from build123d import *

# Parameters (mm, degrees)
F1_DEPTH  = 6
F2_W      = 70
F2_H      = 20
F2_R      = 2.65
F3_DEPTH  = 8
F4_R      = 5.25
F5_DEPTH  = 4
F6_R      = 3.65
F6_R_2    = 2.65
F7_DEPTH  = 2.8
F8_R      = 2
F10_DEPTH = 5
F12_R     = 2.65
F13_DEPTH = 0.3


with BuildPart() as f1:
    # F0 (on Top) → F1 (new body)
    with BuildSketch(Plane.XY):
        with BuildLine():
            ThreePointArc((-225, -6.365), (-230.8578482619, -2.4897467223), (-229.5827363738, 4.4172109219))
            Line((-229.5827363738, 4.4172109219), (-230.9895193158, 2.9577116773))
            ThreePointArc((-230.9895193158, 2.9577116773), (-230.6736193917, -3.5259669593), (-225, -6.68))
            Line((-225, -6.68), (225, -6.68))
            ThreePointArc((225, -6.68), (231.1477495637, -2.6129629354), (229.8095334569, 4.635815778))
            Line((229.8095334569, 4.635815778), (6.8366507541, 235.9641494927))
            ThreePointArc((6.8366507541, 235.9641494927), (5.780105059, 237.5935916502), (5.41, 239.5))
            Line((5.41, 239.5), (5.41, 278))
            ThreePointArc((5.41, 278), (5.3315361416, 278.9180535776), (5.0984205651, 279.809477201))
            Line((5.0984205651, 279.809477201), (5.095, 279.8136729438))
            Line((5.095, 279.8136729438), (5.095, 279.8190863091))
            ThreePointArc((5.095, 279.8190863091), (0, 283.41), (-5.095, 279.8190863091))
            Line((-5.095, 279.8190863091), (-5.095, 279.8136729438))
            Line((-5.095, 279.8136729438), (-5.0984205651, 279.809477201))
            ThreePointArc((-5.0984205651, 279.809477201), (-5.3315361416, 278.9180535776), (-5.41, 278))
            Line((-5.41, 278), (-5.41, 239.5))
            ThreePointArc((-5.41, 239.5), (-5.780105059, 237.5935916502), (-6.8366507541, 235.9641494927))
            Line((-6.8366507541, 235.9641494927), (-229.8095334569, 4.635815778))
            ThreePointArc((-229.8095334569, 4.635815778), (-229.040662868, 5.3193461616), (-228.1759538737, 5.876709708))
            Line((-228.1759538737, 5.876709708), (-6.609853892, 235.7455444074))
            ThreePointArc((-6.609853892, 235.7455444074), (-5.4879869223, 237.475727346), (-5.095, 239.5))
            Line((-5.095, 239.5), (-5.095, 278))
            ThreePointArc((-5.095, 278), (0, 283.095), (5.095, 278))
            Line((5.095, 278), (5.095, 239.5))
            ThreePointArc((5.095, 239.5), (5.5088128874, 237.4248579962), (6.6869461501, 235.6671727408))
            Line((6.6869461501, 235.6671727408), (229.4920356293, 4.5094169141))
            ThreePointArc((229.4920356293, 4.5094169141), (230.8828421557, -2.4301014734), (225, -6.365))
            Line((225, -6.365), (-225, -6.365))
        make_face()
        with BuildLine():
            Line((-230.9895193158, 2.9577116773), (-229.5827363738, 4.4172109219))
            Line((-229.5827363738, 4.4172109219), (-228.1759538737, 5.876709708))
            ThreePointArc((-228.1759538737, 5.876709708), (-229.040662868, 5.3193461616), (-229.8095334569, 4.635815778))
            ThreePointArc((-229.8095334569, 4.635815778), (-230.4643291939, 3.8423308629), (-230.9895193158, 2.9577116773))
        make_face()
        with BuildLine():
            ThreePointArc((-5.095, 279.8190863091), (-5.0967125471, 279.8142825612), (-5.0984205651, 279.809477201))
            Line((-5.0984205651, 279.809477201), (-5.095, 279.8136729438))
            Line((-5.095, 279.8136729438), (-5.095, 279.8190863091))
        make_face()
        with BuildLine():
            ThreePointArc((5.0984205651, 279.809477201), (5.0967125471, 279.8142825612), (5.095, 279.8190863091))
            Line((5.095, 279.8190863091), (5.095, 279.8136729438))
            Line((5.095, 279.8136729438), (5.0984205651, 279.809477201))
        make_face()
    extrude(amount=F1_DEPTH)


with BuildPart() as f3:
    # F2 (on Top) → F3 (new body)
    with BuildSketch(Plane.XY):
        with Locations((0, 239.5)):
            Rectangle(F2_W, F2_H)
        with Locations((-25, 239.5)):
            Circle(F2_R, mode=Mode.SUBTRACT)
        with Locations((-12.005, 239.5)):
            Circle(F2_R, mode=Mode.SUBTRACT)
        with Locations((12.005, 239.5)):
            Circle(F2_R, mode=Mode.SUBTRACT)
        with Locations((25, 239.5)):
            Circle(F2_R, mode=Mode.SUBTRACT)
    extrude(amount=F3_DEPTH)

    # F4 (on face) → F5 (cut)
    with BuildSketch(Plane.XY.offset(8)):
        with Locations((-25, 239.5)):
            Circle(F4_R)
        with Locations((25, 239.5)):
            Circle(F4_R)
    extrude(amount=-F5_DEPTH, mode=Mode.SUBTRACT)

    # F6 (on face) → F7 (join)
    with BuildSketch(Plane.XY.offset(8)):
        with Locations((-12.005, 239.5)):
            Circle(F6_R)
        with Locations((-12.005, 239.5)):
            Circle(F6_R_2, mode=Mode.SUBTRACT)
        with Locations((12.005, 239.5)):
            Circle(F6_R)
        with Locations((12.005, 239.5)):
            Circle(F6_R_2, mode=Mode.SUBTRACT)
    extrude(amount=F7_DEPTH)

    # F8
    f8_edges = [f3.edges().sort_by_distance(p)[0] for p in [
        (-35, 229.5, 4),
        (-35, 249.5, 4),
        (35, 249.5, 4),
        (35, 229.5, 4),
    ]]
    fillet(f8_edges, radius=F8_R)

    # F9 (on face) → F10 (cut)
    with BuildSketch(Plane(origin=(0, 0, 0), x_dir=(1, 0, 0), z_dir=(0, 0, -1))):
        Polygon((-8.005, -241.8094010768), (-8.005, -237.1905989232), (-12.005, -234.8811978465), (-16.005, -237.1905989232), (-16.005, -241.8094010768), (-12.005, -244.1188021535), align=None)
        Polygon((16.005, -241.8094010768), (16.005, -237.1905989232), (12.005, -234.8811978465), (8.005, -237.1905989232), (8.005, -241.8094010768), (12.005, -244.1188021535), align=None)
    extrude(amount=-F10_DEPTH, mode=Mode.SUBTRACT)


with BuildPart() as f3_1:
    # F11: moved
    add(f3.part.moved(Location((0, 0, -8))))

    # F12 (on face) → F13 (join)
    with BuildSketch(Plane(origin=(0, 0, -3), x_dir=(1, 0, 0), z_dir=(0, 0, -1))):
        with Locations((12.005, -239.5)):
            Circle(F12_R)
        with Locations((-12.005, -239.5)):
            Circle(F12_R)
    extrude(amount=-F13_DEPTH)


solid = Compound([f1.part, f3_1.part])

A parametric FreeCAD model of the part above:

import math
import FreeCAD as App
import Part
import Sketcher
from FreeCAD import Vector
Q = App.Units.Quantity


def edges_at(feature, points):
    """Names of the edges that pass closest to the given points."""
    edges = feature.Shape.Edges
    near = lambda p: min(range(len(edges)), key=lambda i: edges[i].distToShape(Part.Vertex(*p))[0])
    return sorted({f"Edge{near(p) + 1}" for p in points})


def add_polygon(sketch, points):
    """Adds a closed chain of lines whose ends are joined by coincident constraints."""
    first, n = sketch.GeometryCount, len(points)
    for a, b in zip(points, points[1:] + points[:1]):
        sketch.addGeometry(Part.LineSegment(App.Vector(*a, 0), App.Vector(*b, 0)), False)
    for i in range(n):
        sketch.addConstraint(Sketcher.Constraint("Coincident", first + i, 2, first + (i + 1) % n, 1))

doc = App.newDocument("Part")
body = doc.addObject("PartDesign::Body", "Body")

# Sketch on XY plane
sketch1 = body.newObject("Sketcher::SketchObject", "Sketch")
sketch1.AttachmentSupport = (doc.getObject("XY_Plane"), [""])
sketch1.MapMode = "FlatFace"
sketch1.addGeometry([
    Part.ArcOfCircle(Part.Circle(Vector(-225, 0, 0), Vector(0, 0, 1), 6.68), math.radians(154), math.radians(270)),  # 0
    Part.LineSegment(Vector(-225, -6.68, 0), Vector(225, -6.68, 0)),  # 1
    Part.ArcOfCircle(Part.Circle(Vector(225, 0, 0), Vector(0, 0, 1), 6.68), math.radians(-90), math.radians(44)),  # 2
    Part.LineSegment(Vector(229.81, 4.636, 0), Vector(6.837, 235.964, 0)),  # 3
    Part.ArcOfCircle(Part.Circle(Vector(10.505, 239.5, 0), Vector(0, 0, 1), 5.095), math.radians(180), math.radians(224)),  # 4
    Part.LineSegment(Vector(5.41, 239.5, 0), Vector(5.41, 278, 0)),  # 5
    Part.ArcOfCircle(Part.Circle(Vector(0, 278, 0), Vector(0, 0, 1), 5.41), math.radians(0), math.radians(19.54)),  # 6
    Part.ArcOfCircle(Part.Circle(Vector(0, 278, 0), Vector(0, 0, 1), 5.41), math.radians(19.54), math.radians(19.65)),  # 7
    Part.ArcOfCircle(Part.Circle(Vector(0, 278, 0), Vector(0, 0, 1), 5.41), math.radians(20), math.radians(160)),  # 8
    Part.ArcOfCircle(Part.Circle(Vector(0, 278, 0), Vector(0, 0, 1), 5.41), math.radians(160.35), math.radians(160.46)),  # 9
    Part.ArcOfCircle(Part.Circle(Vector(0, 278, 0), Vector(0, 0, 1), 5.41), math.radians(160.46), math.radians(180)),  # 10
    Part.LineSegment(Vector(-5.41, 278, 0), Vector(-5.41, 239.5, 0)),  # 11
    Part.ArcOfCircle(Part.Circle(Vector(-10.505, 239.5, 0), Vector(0, 0, 1), 5.095), math.radians(-44), math.radians(0)),  # 12
    Part.LineSegment(Vector(-6.837, 235.964, 0), Vector(-229.81, 4.636, 0)),  # 13
    Part.ArcOfCircle(Part.Circle(Vector(-225, 0, 0), Vector(0, 0, 1), 6.68), math.radians(136.05), math.radians(153.72)),  # 14
    Part.ArcOfCircle(Part.Circle(Vector(-225, 0, 0), Vector(0, 0, 1), 6.365), math.radians(136), math.radians(270)),  # 15
    Part.LineSegment(Vector(-229.583, 4.417, 0), Vector(-228.176, 5.877, 0)),  # 16
    Part.LineSegment(Vector(-228.176, 5.877, 0), Vector(-6.61, 235.746, 0)),  # 17
    Part.ArcOfCircle(Part.Circle(Vector(-10.505, 239.5, 0), Vector(0, 0, 1), 5.41), math.radians(-44), math.radians(0)),  # 18
    Part.LineSegment(Vector(-5.095, 239.5, 0), Vector(-5.095, 278, 0)),  # 19
    Part.ArcOfCircle(Part.Circle(Vector(0, 278, 0), Vector(0, 0, 1), 5.095), math.radians(0), math.radians(180)),  # 20
    Part.LineSegment(Vector(5.095, 278, 0), Vector(5.095, 239.5, 0)),  # 21
    Part.ArcOfCircle(Part.Circle(Vector(10.505, 239.5, 0), Vector(0, 0, 1), 5.41), math.radians(180), math.radians(225)),  # 22
    Part.LineSegment(Vector(6.687, 235.667, 0), Vector(229.492, 4.509, 0)),  # 23
    Part.ArcOfCircle(Part.Circle(Vector(225, 0, 0), Vector(0, 0, 1), 6.365), math.radians(-90), math.radians(45)),  # 24
    Part.LineSegment(Vector(225, -6.365, 0), Vector(-225, -6.365, 0)),  # 25
], False)
sketch1.addConstraint([
    Sketcher.Constraint("Tangent", 0, 2, 1, 1),
    Sketcher.Constraint("Tangent", 1, 2, 2, 1),
    Sketcher.Constraint("Tangent", 2, 2, 3, 1),
    Sketcher.Constraint("Tangent", 3, 2, 4, 2),
    Sketcher.Constraint("Tangent", 4, 1, 5, 1),
    Sketcher.Constraint("Tangent", 5, 2, 6, 1),
    Sketcher.Constraint("Tangent", 6, 2, 7, 1),
    Sketcher.Constraint("Tangent", 7, 2, 8, 1),
    Sketcher.Constraint("Tangent", 8, 2, 9, 1),
    Sketcher.Constraint("Tangent", 9, 2, 10, 1),
    Sketcher.Constraint("Tangent", 10, 2, 11, 1),
    Sketcher.Constraint("Tangent", 11, 2, 12, 2),
    Sketcher.Constraint("Tangent", 12, 1, 13, 1),
    Sketcher.Constraint("Tangent", 13, 2, 14, 1),
    Sketcher.Constraint("Tangent", 14, 2, 0, 1),
    Sketcher.Constraint("Tangent", 15, 1, 16, 1),
    Sketcher.Constraint("Coincident", 16, 2, 17, 1),
    Sketcher.Constraint("Tangent", 17, 2, 18, 1),
    Sketcher.Constraint("Tangent", 18, 2, 19, 1),
    Sketcher.Constraint("Tangent", 19, 2, 20, 2),
    Sketcher.Constraint("Tangent", 20, 1, 21, 1),
    Sketcher.Constraint("Tangent", 21, 2, 22, 1),
    Sketcher.Constraint("Coincident", 22, 2, 23, 1),
    Sketcher.Constraint("Coincident", 23, 2, 24, 2),
    Sketcher.Constraint("Tangent", 24, 1, 25, 1),
    Sketcher.Constraint("Tangent", 25, 2, 15, 2),
    Sketcher.Constraint("Horizontal", 1),
    Sketcher.Constraint("Vertical", 5),
    Sketcher.Constraint("Vertical", 11),
    Sketcher.Constraint("Vertical", 19),
    Sketcher.Constraint("Vertical", 21),
    Sketcher.Constraint("Horizontal", 25),
    Sketcher.Constraint("Coincident", 10, 3, 6, 3),
    Sketcher.Constraint("Coincident", 15, 3, 0, 3),
    Sketcher.Constraint("Coincident", 18, 3, 12, 3),
    Sketcher.Constraint("Coincident", 20, 3, 6, 3),
    Sketcher.Constraint("Coincident", 22, 3, 4, 3),
    Sketcher.Constraint("Coincident", 24, 3, 2, 3),
    Sketcher.Constraint("Equal", 0, 2),
    Sketcher.Constraint("Equal", 7, 9),
    Sketcher.Constraint("Equal", 4, 12),
    Sketcher.Constraint("Equal", 2, 14),
    Sketcher.Constraint("Equal", 10, 18),
    Sketcher.Constraint("Symmetric", 0, 3, 2, 3, -1, 1),
    Sketcher.Constraint("Symmetric", 4, 3, 12, 3, -2),
    Sketcher.Constraint("Parallel", 13, 16),
    Sketcher.Constraint("Parallel", 16, 17),
    Sketcher.Constraint("Horizontal", 7, 2, 8, 2),
    Sketcher.Constraint("Horizontal", 6, 2, 9, 2),
    Sketcher.Constraint("Vertical", 8, 2, 18, 2),
    Sketcher.Constraint("DistanceX", 1, 1, 1, 2, 450.0),
    Sketcher.Constraint("Radius", 0, 6.68),
    Sketcher.Constraint("Radius", 6, 5.41),
    Sketcher.Constraint("DistanceY", 5, 1, 5, 2, 38.5),
    Sketcher.Constraint("DistanceY", -1, 1, 6, 3, 278.0),
    Sketcher.Constraint("Radius", 4, 5.095),
    Sketcher.Constraint("Radius", 7, 5.410026),
    Sketcher.Constraint("DistanceY", 14, 2, 16, 2, 2.918998),
    Sketcher.Constraint("DistanceY", 14, 2, 15, 1, 1.459499),
    Sketcher.Constraint("DistanceY", 23, 2, 2, 2, 0.126399),
    Sketcher.Constraint("DistanceX", -1, 1, 6, 2, 5.098421),
    Sketcher.Constraint("DistanceX", 22, 2, 23, 2, 222.805089),
])
pad1 = body.newObject("PartDesign::Pad", "Pad")
pad1.Profile = sketch1
pad1.Length = 6
body2 = doc.addObject("PartDesign::Body", "Body001")

# Sketch on XY plane
sketch2 = body2.newObject("Sketcher::SketchObject", "Sketch001")
sketch2.AttachmentSupport = (doc.getObject("XY_Plane001"), [""])
sketch2.MapMode = "FlatFace"
add_polygon(sketch2, [(-35, 249.5), (-35, 229.5), (35, 229.5), (35, 249.5)])  # lines 0-3
sketch2.addGeometry(Part.Circle(Vector(-25, 239.5, 0), Vector(0, 0, 1), 2.6), False)  # 4
sketch2.addGeometry(Part.Circle(Vector(-12, 239.5, 0), Vector(0, 0, 1), 2.6), False)  # 5
sketch2.addGeometry(Part.Circle(Vector(12, 239.5, 0), Vector(0, 0, 1), 2.6), False)  # 6
sketch2.addGeometry(Part.Circle(Vector(25, 239.5, 0), Vector(0, 0, 1), 2.6), False)  # 7
sketch2.addConstraint([
    Sketcher.Constraint("Vertical", 0),
    Sketcher.Constraint("Horizontal", 1),
    Sketcher.Constraint("Vertical", 2),
    Sketcher.Constraint("Horizontal", 3),
    Sketcher.Constraint("Equal", 4, 5),
    Sketcher.Constraint("Equal", 5, 6),
    Sketcher.Constraint("Equal", 6, 7),
    Sketcher.Constraint("Symmetric", 5, 3, 6, 3, -2),
    Sketcher.Constraint("Symmetric", 4, 3, 7, 3, -2),
    Sketcher.Constraint("Horizontal", 4, 3, 5, 3),
    Sketcher.Constraint("Diameter", 4, 5.3),
    Sketcher.Constraint("DistanceX", 1, 1, 1, 2, 70.0),
    Sketcher.Constraint("DistanceY", 0, 2, 0, 1, 20.0),
    Sketcher.Constraint("DistanceX", 4, 3, -1, 1, 25.0),
    Sketcher.Constraint("DistanceX", 0, 2, -1, 1, 35.0),
    Sketcher.Constraint("DistanceY", 0, 2, 4, 3, 10.0),
    Sketcher.Constraint("DistanceY", -1, 1, 4, 3, 239.5),
    Sketcher.Constraint("DistanceX", 5, 3, 6, 3, 24.01),
])
pad2 = body2.newObject("PartDesign::Pad", "Pad001")
pad2.Profile = sketch2
pad2.Length = 8

# Sketch on XY plane
sketch3 = body2.newObject("Sketcher::SketchObject", "Sketch002")
sketch3.AttachmentSupport = (doc.getObject("XY_Plane001"), [""])
sketch3.MapMode = "FlatFace"
sketch3.AttachmentOffset = App.Placement(Vector(0, 0, 8), App.Rotation())
sketch3.addGeometry([
    Part.Circle(Vector(-25, 240, 0), Vector(0, 0, 1), 5),
    Part.Circle(Vector(25, 240, 0), Vector(0, 0, 1), 5),
], False)
sketch3.addConstraint([
    Sketcher.Constraint("Equal", 0, 1),
    Sketcher.Constraint("Symmetric", 0, 3, 1, 3, -2),
    Sketcher.Constraint("Diameter", 0, 10.5),
    Sketcher.Constraint("DistanceX", 0, 3, -1, 1, 25.0),
    Sketcher.Constraint("DistanceY", -1, 1, 0, 3, 239.5),
])
pocket1 = body2.newObject("PartDesign::Pocket", "Pocket")
pocket1.Profile = sketch3
pocket1.Length = 4

# Sketch on XY plane
sketch4 = body2.newObject("Sketcher::SketchObject", "Sketch003")
sketch4.AttachmentSupport = (doc.getObject("XY_Plane001"), [""])
sketch4.MapMode = "FlatFace"
sketch4.AttachmentOffset = App.Placement(Vector(0, 0, 8), App.Rotation())
sketch4.addGeometry([
    Part.Circle(Vector(-12, 239.5, 0), Vector(0, 0, 1), 3.6),
    Part.Circle(Vector(-12, 239.5, 0), Vector(0, 0, 1), 2.6),
    Part.Circle(Vector(12, 239.5, 0), Vector(0, 0, 1), 3.6),
    Part.Circle(Vector(12, 239.5, 0), Vector(0, 0, 1), 2.6),
], False)
sketch4.addConstraint([
    Sketcher.Constraint("Coincident", 1, 3, 0, 3),
    Sketcher.Constraint("Coincident", 3, 3, 2, 3),
    Sketcher.Constraint("Equal", 0, 2),
    Sketcher.Constraint("Equal", 1, 3),
    Sketcher.Constraint("Symmetric", 0, 3, 2, 3, -2),
    Sketcher.Constraint("Diameter", 0, 7.3),
    Sketcher.Constraint("Diameter", 1, 5.3),
    Sketcher.Constraint("DistanceY", -1, 1, 0, 3, 239.5),
    Sketcher.Constraint("DistanceX", 0, 3, 2, 3, 24.01),
])
pad3 = body2.newObject("PartDesign::Pad", "Pad002")
pad3.Profile = sketch4
pad3.Length = 2.8
doc.recompute()

fillet = body2.newObject("PartDesign::Fillet", "Fillet")
fillet.Base = (pad3, edges_at(pad3, [
    (-35, 229.5, 4),
    (-35, 249.5, 4),
    (35, 249.5, 4),
    (35, 229.5, 4),
]))
fillet.Radius = 2

# Sketch on XY plane
sketch5 = body2.newObject("Sketcher::SketchObject", "Sketch004")
sketch5.AttachmentSupport = (doc.getObject("XY_Plane001"), [""])
sketch5.MapMode = "FlatFace"
add_polygon(sketch5, [(-8, 241.8), (-8, 237.2), (-12, 234.9), (-16, 237.2), (-16, 241.8), (-12, 244.1)])  # lines 0-5
add_polygon(sketch5, [(16, 241.8), (16, 237.2), (12, 234.9), (8, 237.2), (8, 241.8), (12, 244.1)])  # lines 6-11
sketch5.addConstraint([
    Sketcher.Constraint("Vertical", 0),
    Sketcher.Constraint("Vertical", 3),
    Sketcher.Constraint("Vertical", 6),
    Sketcher.Constraint("Vertical", 9),
    Sketcher.Constraint("Symmetric", 2, 2, 6, 2, -2),
    Sketcher.Constraint("Symmetric", 1, 2, 7, 2, -2),
    Sketcher.Constraint("Symmetric", 0, 2, 8, 2, -2),
    Sketcher.Constraint("Symmetric", 4, 2, 10, 2, -2),
    Sketcher.Constraint("Parallel", 1, 4),
    Sketcher.Constraint("Parallel", 2, 5),
    Sketcher.Constraint("Parallel", 4, 7),
    Sketcher.Constraint("Parallel", 7, 10),
    Sketcher.Constraint("Parallel", 8, 11),
    Sketcher.Constraint("Horizontal", 0, 2, 2, 2),
    Sketcher.Constraint("Horizontal", 3, 2, 5, 2),
    Sketcher.Constraint("Angle", 1, Q("-150 deg")),
    Sketcher.Constraint("DistanceX", 1, 2, 0, 2, 4.0),
    Sketcher.Constraint("DistanceX", 0, 2, 6, 2, 24.01),
    Sketcher.Constraint("DistanceY", -1, 1, 0, 2, 237.190599),
    Sketcher.Constraint("DistanceY", -1, 1, 3, 2, 241.809401),
])
pocket2 = body2.newObject("PartDesign::Pocket", "Pocket001")
pocket2.Profile = sketch5
pocket2.Length = 5
pocket2.Reversed = True
body3 = doc.addObject("PartDesign::Body", "Body002")
doc.recompute()

body2.Placement = App.Placement(Vector(0, 0, -8), App.Rotation(Vector(0, 0, 1), 0))
boolean = body3.newObject("PartDesign::Boolean", "Boolean")
boolean.Type = "Fuse"
boolean.addObjects([body2])

# Sketch on XY plane
sketch6 = body3.newObject("Sketcher::SketchObject", "Sketch005")
sketch6.AttachmentSupport = (doc.getObject("XY_Plane002"), [""])
sketch6.MapMode = "FlatFace"
sketch6.AttachmentOffset = App.Placement(Vector(0, 0, -3), App.Rotation())
sketch6.addGeometry([
    Part.Circle(Vector(12, 239.5, 0), Vector(0, 0, 1), 2.6),
    Part.Circle(Vector(-12, 239.5, 0), Vector(0, 0, 1), 2.6),
], False)
sketch6.addConstraint([
    Sketcher.Constraint("Equal", 0, 1),
    Sketcher.Constraint("Symmetric", 0, 3, 1, 3, -2),
    Sketcher.Constraint("Diameter", 0, 5.3),
    Sketcher.Constraint("DistanceY", -1, 1, 0, 3, 239.5),
    Sketcher.Constraint("DistanceX", 1, 3, 0, 3, 24.01),
])
pad4 = body3.newObject("PartDesign::Pad", "Pad003")
pad4.Profile = sketch6
pad4.Length = 0.3

doc.recompute()
